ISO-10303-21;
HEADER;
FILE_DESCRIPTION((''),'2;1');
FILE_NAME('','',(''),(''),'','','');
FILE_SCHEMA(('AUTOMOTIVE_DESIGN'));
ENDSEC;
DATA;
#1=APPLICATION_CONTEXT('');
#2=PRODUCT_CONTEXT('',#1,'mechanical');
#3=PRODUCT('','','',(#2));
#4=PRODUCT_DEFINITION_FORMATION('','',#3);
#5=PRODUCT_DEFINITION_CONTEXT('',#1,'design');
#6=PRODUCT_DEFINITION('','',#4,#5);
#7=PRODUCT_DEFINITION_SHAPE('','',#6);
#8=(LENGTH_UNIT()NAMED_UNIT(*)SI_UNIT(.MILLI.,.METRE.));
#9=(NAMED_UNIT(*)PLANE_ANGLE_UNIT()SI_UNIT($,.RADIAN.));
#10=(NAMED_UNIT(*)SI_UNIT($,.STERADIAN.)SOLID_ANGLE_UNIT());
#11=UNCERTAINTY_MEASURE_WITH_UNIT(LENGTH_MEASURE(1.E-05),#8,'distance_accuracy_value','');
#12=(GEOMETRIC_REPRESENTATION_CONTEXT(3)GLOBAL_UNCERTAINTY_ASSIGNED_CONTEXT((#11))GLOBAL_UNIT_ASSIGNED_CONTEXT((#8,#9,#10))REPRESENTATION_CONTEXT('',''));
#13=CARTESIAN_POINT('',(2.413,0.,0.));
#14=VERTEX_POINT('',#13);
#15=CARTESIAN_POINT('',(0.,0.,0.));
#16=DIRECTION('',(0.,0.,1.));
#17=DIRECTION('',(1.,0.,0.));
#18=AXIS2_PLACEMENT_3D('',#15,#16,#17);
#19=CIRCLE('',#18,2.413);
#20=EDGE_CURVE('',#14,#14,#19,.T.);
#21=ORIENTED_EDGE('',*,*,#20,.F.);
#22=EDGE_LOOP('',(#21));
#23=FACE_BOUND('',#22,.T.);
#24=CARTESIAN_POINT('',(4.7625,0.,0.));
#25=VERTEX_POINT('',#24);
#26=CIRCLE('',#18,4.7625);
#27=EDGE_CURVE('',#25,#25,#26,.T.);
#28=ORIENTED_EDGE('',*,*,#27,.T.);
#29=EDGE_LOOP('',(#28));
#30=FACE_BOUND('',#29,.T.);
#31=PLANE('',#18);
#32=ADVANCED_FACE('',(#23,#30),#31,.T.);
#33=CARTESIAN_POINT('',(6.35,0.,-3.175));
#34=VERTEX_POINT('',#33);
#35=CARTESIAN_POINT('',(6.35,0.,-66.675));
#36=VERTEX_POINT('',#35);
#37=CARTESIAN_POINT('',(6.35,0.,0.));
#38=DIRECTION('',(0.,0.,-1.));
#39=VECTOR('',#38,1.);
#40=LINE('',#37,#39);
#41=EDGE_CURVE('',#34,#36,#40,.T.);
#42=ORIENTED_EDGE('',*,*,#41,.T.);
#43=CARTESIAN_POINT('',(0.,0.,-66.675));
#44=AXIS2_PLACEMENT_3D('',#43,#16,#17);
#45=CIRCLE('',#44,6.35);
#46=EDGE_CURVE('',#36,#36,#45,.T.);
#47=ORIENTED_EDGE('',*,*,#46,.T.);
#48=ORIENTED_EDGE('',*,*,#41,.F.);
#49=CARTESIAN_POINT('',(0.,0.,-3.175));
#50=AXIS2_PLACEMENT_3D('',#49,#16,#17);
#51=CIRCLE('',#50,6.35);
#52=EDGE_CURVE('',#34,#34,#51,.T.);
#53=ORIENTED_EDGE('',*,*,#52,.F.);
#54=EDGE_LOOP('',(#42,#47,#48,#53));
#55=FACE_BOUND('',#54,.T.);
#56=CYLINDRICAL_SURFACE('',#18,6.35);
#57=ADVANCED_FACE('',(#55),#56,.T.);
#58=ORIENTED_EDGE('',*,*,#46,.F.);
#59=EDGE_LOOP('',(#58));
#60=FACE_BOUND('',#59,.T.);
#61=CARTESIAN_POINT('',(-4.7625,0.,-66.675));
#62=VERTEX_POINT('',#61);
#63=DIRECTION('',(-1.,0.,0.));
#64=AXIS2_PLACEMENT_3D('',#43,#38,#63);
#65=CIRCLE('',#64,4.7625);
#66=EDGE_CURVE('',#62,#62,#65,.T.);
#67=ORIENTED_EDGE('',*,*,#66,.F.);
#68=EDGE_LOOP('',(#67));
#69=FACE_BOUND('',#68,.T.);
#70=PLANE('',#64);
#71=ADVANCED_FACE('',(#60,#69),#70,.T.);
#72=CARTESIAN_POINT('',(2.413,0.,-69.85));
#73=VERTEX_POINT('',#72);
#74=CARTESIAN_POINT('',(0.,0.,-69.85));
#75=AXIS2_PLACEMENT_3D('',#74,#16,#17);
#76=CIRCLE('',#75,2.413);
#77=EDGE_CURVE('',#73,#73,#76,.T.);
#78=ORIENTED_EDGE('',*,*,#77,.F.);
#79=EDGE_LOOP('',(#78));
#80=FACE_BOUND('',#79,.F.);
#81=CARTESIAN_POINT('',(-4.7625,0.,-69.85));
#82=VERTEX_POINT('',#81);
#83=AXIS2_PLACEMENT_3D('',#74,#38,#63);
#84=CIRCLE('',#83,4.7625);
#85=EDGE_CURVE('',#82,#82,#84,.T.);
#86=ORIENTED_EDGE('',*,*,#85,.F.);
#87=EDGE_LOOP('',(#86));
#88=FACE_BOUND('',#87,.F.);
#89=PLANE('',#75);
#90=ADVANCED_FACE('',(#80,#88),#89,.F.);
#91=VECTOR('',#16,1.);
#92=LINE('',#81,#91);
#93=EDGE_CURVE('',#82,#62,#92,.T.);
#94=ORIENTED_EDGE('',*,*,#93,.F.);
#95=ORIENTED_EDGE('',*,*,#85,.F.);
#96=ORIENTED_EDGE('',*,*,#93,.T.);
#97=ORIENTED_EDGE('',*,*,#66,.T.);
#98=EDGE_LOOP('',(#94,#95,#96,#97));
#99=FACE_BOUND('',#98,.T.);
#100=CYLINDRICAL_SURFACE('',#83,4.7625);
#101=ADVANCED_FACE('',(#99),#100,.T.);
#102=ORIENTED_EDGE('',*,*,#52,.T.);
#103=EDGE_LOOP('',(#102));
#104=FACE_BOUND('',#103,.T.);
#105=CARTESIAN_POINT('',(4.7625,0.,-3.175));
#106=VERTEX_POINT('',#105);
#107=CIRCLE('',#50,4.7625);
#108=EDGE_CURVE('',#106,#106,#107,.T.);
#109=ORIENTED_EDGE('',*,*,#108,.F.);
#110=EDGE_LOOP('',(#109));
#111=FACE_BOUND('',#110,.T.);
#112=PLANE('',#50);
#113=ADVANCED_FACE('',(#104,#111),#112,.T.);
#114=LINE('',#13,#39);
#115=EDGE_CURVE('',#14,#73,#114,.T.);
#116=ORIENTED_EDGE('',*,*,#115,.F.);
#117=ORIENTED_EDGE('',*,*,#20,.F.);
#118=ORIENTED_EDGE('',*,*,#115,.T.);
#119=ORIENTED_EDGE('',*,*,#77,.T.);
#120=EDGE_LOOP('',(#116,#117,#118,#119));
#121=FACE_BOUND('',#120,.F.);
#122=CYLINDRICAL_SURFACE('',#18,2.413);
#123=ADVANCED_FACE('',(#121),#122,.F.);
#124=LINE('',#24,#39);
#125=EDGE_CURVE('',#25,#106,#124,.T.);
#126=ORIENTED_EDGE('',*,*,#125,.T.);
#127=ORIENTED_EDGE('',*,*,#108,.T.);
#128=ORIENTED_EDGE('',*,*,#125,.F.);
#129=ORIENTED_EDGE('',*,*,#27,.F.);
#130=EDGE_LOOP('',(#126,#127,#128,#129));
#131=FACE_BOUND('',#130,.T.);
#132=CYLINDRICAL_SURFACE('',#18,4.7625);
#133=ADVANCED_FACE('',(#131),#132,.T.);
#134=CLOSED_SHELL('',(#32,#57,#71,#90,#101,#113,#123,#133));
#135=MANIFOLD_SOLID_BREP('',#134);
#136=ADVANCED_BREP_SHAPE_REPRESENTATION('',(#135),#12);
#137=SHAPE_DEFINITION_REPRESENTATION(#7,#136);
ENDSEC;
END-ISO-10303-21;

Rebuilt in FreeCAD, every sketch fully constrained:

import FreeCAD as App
import Part
import Sketcher
Q = App.Units.Quantity

doc = App.newDocument("Part")
params = doc.addObject("Spreadsheet::Sheet", "Params")
for row, (alias, value) in enumerate([
    ("sketch1_diameter", "0.5 in"),
    ("pad1_length", "2.75 in"),
    ("sketch2_diameter", "0.375 in"),
    ("sketch2_diameter2", "0.5 in"),
    ("pocket1_length", "0.125 in"),
    ("sketch3_diameter", "0.5 in"),
    ("sketch3_diameter2", "0.375 in"),
    ("pocket2_length", "0.125 in"),
    ("sketch4_diameter", "0.19 in"),
], start=1):
    params.set(f"A{row}", alias)
    params.set(f"B{row}", "=" + value)
    params.setAlias(f"B{row}", alias)

body = doc.addObject("PartDesign::Body", "Body")

sketch1 = body.newObject("Sketcher::SketchObject", "Sketch")
sketch1.AttachmentSupport = (doc.getObject("XY_Plane"), [""])
sketch1.MapMode = "FlatFace"
sketch1.addGeometry(Part.Circle(App.Vector(0, 0, 0), App.Vector(0, 0, 1), 6.35), False)
sketch1.addConstraint(Sketcher.Constraint("Coincident", 0, 3, -1, 1))
sketch1.addConstraint(Sketcher.Constraint("Diameter", 0, Q("0.5 in")))
sketch1.setExpression("Constraints[1]", "Params.sketch1_diameter")
pad1 = body.newObject("PartDesign::Pad", "Pad")
pad1.Profile = sketch1
pad1.setExpression("Length", "Params.pad1_length")
pad1.Reversed = True

sketch2 = body.newObject("Sketcher::SketchObject", "Sketch001")
sketch2.AttachmentSupport = (doc.getObject("XY_Plane"), [""])
sketch2.MapMode = "FlatFace"
sketch2.addGeometry(Part.Circle(App.Vector(0, 0, 0), App.Vector(0, 0, 1), 6.35), False)
sketch2.addGeometry(Part.Circle(App.Vector(0, 0, 0), App.Vector(0, 0, 1), 4.7625), False)
sketch2.addConstraint(Sketcher.Constraint("Coincident", 0, 3, -1, 1))
sketch2.addConstraint(Sketcher.Constraint("Coincident", 1, 3, -1, 1))
sketch2.addConstraint(Sketcher.Constraint("Diameter", 1, Q("0.375 in")))
sketch2.addConstraint(Sketcher.Constraint("Diameter", 0, Q("0.5 in")))
sketch2.setExpression("Constraints[2]", "Params.sketch2_diameter")
sketch2.setExpression("Constraints[3]", "Params.sketch2_diameter2")
pocket1 = body.newObject("PartDesign::Pocket", "Pocket")
pocket1.Profile = sketch2
pocket1.setExpression("Length", "Params.pocket1_length")

sketch3 = body.newObject("Sketcher::SketchObject", "Sketch002")
sketch3.AttachmentSupport = (doc.getObject("XY_Plane"), [""])
sketch3.MapMode = "FlatFace"
sketch3.AttachmentOffset = App.Placement(App.Vector(0, 0, -2.75 * 25.4), App.Rotation())
sketch3.addGeometry(Part.Circle(App.Vector(0, 0, 0), App.Vector(0, 0, 1), 6.35), False)
sketch3.addGeometry(Part.Circle(App.Vector(0, 0, 0), App.Vector(0, 0, 1), 4.7625), False)
sketch3.addConstraint(Sketcher.Constraint("Coincident", 0, 3, -1, 1))
sketch3.addConstraint(Sketcher.Constraint("Coincident", 1, 3, -1, 1))
sketch3.addConstraint(Sketcher.Constraint("Diameter", 0, Q("0.5 in")))
sketch3.addConstraint(Sketcher.Constraint("Diameter", 1, Q("0.375 in")))
sketch3.setExpression("Constraints[2]", "Params.sketch3_diameter")
sketch3.setExpression("Constraints[3]", "Params.sketch3_diameter2")
pocket2 = body.newObject("PartDesign::Pocket", "Pocket001")
pocket2.Profile = sketch3
pocket2.setExpression("Length", "Params.pocket2_length")
pocket2.Reversed = True

sketch4 = body.newObject("Sketcher::SketchObject", "Sketch003")
sketch4.AttachmentSupport = (doc.getObject("XY_Plane"), [""])
sketch4.MapMode = "FlatFace"
sketch4.addGeometry(Part.Circle(App.Vector(0, 0, 0), App.Vector(0, 0, 1), 2.413), False)
sketch4.addConstraint(Sketcher.Constraint("Coincident", 0, 3, -1, 1))
sketch4.addConstraint(Sketcher.Constraint("Diameter", 0, Q("0.19 in")))
sketch4.setExpression("Constraints[1]", "Params.sketch4_diameter")
pocket3 = body.newObject("PartDesign::Pocket", "Pocket002")
pocket3.Profile = sketch4
pocket3.Type = "ThroughAll"

doc.recompute()
